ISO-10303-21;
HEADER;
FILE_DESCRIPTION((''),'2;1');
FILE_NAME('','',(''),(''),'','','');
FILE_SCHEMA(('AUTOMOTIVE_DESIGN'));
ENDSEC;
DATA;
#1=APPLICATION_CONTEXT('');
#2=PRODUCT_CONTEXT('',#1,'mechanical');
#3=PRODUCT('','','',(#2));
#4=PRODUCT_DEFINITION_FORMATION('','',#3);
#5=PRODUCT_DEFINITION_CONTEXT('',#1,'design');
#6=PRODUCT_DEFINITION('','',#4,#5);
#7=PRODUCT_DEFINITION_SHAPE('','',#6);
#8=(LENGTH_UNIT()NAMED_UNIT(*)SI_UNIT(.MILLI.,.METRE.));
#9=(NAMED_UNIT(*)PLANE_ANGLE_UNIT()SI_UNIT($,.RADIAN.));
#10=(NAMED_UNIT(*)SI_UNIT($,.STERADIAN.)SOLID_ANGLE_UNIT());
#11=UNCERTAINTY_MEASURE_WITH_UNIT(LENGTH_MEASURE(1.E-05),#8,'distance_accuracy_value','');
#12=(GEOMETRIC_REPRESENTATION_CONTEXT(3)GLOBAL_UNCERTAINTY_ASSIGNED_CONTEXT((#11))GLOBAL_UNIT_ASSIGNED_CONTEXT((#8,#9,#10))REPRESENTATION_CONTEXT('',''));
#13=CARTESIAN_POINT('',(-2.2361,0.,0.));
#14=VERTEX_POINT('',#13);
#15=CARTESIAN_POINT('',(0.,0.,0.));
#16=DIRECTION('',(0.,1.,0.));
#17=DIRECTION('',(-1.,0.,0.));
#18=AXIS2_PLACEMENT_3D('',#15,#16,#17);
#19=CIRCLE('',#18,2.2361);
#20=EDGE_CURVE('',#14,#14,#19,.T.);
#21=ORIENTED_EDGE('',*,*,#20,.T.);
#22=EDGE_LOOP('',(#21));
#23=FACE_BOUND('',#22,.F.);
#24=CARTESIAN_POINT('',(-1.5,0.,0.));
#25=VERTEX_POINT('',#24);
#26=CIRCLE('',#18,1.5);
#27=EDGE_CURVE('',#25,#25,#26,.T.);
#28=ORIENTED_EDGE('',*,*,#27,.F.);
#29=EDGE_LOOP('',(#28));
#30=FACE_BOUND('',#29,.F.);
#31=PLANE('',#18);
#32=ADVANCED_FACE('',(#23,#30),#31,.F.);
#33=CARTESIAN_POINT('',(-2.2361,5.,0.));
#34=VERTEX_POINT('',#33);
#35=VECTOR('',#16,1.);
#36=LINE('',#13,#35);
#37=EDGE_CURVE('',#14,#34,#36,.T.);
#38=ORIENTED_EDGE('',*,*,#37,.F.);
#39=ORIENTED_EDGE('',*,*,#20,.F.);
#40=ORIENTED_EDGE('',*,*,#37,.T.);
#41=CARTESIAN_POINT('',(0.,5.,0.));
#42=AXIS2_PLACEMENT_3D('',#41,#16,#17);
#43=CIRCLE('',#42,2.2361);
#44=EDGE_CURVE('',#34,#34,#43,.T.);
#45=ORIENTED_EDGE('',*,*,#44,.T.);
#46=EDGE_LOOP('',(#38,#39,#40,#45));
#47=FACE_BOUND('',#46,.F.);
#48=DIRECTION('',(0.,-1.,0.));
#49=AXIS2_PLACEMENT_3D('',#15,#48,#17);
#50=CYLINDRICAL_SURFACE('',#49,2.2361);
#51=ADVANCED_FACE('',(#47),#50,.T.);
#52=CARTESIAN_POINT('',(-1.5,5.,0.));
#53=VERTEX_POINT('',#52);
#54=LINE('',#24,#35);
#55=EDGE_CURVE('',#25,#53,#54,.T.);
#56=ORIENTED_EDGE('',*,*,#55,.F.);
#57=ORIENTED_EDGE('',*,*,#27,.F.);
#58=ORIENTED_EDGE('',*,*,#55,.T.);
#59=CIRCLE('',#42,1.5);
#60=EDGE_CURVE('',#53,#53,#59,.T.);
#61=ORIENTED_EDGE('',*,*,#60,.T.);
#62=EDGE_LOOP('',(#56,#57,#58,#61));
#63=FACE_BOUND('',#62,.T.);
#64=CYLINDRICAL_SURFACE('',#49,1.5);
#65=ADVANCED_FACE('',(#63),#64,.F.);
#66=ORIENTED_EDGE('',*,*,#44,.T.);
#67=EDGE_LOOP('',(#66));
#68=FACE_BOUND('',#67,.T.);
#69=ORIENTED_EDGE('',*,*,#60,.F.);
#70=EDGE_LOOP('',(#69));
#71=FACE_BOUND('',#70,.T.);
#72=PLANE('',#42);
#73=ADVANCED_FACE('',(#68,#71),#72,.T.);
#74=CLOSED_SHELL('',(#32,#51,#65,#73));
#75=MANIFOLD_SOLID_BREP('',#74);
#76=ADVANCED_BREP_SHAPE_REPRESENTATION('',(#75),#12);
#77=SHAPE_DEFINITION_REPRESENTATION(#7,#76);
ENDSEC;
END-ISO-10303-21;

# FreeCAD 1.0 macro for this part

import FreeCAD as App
import Part
import Sketcher

V = App.Vector
Q = App.Units.Quantity

doc = App.newDocument("Part")
body = doc.addObject("PartDesign::Body", "Body")

sketch1 = doc.addObject("Sketcher::SketchObject", "Sketch")
body.addObject(sketch1)
sketch1.AttachmentSupport = (doc.XZ_Plane, [""])
sketch1.MapMode = "FlatFace"
sketch1.addGeometry(Part.Circle(V(0, 0, 0), V(0, 0, 1), 2.2361), False)
sketch1.addGeometry(Part.Circle(V(0, 0, 0), V(0, 0, 1), 1.5), False)
sketch1.addConstraint(Sketcher.Constraint("Coincident", 0, 3, -1, 1))
sketch1.addConstraint(Sketcher.Constraint("Coincident", 1, 3, -1, 1))
sketch1.addConstraint(Sketcher.Constraint("Diameter", 1, Q("3 mm")))
sketch1.addConstraint(Sketcher.Constraint("Diameter", 0, Q("4.4722 mm")))
pad1 = doc.addObject("PartDesign::Pad", "Pad")
body.addObject(pad1)
pad1.Profile = sketch1
pad1.Length = 5
pad1.Reversed = True

doc.recompute()
